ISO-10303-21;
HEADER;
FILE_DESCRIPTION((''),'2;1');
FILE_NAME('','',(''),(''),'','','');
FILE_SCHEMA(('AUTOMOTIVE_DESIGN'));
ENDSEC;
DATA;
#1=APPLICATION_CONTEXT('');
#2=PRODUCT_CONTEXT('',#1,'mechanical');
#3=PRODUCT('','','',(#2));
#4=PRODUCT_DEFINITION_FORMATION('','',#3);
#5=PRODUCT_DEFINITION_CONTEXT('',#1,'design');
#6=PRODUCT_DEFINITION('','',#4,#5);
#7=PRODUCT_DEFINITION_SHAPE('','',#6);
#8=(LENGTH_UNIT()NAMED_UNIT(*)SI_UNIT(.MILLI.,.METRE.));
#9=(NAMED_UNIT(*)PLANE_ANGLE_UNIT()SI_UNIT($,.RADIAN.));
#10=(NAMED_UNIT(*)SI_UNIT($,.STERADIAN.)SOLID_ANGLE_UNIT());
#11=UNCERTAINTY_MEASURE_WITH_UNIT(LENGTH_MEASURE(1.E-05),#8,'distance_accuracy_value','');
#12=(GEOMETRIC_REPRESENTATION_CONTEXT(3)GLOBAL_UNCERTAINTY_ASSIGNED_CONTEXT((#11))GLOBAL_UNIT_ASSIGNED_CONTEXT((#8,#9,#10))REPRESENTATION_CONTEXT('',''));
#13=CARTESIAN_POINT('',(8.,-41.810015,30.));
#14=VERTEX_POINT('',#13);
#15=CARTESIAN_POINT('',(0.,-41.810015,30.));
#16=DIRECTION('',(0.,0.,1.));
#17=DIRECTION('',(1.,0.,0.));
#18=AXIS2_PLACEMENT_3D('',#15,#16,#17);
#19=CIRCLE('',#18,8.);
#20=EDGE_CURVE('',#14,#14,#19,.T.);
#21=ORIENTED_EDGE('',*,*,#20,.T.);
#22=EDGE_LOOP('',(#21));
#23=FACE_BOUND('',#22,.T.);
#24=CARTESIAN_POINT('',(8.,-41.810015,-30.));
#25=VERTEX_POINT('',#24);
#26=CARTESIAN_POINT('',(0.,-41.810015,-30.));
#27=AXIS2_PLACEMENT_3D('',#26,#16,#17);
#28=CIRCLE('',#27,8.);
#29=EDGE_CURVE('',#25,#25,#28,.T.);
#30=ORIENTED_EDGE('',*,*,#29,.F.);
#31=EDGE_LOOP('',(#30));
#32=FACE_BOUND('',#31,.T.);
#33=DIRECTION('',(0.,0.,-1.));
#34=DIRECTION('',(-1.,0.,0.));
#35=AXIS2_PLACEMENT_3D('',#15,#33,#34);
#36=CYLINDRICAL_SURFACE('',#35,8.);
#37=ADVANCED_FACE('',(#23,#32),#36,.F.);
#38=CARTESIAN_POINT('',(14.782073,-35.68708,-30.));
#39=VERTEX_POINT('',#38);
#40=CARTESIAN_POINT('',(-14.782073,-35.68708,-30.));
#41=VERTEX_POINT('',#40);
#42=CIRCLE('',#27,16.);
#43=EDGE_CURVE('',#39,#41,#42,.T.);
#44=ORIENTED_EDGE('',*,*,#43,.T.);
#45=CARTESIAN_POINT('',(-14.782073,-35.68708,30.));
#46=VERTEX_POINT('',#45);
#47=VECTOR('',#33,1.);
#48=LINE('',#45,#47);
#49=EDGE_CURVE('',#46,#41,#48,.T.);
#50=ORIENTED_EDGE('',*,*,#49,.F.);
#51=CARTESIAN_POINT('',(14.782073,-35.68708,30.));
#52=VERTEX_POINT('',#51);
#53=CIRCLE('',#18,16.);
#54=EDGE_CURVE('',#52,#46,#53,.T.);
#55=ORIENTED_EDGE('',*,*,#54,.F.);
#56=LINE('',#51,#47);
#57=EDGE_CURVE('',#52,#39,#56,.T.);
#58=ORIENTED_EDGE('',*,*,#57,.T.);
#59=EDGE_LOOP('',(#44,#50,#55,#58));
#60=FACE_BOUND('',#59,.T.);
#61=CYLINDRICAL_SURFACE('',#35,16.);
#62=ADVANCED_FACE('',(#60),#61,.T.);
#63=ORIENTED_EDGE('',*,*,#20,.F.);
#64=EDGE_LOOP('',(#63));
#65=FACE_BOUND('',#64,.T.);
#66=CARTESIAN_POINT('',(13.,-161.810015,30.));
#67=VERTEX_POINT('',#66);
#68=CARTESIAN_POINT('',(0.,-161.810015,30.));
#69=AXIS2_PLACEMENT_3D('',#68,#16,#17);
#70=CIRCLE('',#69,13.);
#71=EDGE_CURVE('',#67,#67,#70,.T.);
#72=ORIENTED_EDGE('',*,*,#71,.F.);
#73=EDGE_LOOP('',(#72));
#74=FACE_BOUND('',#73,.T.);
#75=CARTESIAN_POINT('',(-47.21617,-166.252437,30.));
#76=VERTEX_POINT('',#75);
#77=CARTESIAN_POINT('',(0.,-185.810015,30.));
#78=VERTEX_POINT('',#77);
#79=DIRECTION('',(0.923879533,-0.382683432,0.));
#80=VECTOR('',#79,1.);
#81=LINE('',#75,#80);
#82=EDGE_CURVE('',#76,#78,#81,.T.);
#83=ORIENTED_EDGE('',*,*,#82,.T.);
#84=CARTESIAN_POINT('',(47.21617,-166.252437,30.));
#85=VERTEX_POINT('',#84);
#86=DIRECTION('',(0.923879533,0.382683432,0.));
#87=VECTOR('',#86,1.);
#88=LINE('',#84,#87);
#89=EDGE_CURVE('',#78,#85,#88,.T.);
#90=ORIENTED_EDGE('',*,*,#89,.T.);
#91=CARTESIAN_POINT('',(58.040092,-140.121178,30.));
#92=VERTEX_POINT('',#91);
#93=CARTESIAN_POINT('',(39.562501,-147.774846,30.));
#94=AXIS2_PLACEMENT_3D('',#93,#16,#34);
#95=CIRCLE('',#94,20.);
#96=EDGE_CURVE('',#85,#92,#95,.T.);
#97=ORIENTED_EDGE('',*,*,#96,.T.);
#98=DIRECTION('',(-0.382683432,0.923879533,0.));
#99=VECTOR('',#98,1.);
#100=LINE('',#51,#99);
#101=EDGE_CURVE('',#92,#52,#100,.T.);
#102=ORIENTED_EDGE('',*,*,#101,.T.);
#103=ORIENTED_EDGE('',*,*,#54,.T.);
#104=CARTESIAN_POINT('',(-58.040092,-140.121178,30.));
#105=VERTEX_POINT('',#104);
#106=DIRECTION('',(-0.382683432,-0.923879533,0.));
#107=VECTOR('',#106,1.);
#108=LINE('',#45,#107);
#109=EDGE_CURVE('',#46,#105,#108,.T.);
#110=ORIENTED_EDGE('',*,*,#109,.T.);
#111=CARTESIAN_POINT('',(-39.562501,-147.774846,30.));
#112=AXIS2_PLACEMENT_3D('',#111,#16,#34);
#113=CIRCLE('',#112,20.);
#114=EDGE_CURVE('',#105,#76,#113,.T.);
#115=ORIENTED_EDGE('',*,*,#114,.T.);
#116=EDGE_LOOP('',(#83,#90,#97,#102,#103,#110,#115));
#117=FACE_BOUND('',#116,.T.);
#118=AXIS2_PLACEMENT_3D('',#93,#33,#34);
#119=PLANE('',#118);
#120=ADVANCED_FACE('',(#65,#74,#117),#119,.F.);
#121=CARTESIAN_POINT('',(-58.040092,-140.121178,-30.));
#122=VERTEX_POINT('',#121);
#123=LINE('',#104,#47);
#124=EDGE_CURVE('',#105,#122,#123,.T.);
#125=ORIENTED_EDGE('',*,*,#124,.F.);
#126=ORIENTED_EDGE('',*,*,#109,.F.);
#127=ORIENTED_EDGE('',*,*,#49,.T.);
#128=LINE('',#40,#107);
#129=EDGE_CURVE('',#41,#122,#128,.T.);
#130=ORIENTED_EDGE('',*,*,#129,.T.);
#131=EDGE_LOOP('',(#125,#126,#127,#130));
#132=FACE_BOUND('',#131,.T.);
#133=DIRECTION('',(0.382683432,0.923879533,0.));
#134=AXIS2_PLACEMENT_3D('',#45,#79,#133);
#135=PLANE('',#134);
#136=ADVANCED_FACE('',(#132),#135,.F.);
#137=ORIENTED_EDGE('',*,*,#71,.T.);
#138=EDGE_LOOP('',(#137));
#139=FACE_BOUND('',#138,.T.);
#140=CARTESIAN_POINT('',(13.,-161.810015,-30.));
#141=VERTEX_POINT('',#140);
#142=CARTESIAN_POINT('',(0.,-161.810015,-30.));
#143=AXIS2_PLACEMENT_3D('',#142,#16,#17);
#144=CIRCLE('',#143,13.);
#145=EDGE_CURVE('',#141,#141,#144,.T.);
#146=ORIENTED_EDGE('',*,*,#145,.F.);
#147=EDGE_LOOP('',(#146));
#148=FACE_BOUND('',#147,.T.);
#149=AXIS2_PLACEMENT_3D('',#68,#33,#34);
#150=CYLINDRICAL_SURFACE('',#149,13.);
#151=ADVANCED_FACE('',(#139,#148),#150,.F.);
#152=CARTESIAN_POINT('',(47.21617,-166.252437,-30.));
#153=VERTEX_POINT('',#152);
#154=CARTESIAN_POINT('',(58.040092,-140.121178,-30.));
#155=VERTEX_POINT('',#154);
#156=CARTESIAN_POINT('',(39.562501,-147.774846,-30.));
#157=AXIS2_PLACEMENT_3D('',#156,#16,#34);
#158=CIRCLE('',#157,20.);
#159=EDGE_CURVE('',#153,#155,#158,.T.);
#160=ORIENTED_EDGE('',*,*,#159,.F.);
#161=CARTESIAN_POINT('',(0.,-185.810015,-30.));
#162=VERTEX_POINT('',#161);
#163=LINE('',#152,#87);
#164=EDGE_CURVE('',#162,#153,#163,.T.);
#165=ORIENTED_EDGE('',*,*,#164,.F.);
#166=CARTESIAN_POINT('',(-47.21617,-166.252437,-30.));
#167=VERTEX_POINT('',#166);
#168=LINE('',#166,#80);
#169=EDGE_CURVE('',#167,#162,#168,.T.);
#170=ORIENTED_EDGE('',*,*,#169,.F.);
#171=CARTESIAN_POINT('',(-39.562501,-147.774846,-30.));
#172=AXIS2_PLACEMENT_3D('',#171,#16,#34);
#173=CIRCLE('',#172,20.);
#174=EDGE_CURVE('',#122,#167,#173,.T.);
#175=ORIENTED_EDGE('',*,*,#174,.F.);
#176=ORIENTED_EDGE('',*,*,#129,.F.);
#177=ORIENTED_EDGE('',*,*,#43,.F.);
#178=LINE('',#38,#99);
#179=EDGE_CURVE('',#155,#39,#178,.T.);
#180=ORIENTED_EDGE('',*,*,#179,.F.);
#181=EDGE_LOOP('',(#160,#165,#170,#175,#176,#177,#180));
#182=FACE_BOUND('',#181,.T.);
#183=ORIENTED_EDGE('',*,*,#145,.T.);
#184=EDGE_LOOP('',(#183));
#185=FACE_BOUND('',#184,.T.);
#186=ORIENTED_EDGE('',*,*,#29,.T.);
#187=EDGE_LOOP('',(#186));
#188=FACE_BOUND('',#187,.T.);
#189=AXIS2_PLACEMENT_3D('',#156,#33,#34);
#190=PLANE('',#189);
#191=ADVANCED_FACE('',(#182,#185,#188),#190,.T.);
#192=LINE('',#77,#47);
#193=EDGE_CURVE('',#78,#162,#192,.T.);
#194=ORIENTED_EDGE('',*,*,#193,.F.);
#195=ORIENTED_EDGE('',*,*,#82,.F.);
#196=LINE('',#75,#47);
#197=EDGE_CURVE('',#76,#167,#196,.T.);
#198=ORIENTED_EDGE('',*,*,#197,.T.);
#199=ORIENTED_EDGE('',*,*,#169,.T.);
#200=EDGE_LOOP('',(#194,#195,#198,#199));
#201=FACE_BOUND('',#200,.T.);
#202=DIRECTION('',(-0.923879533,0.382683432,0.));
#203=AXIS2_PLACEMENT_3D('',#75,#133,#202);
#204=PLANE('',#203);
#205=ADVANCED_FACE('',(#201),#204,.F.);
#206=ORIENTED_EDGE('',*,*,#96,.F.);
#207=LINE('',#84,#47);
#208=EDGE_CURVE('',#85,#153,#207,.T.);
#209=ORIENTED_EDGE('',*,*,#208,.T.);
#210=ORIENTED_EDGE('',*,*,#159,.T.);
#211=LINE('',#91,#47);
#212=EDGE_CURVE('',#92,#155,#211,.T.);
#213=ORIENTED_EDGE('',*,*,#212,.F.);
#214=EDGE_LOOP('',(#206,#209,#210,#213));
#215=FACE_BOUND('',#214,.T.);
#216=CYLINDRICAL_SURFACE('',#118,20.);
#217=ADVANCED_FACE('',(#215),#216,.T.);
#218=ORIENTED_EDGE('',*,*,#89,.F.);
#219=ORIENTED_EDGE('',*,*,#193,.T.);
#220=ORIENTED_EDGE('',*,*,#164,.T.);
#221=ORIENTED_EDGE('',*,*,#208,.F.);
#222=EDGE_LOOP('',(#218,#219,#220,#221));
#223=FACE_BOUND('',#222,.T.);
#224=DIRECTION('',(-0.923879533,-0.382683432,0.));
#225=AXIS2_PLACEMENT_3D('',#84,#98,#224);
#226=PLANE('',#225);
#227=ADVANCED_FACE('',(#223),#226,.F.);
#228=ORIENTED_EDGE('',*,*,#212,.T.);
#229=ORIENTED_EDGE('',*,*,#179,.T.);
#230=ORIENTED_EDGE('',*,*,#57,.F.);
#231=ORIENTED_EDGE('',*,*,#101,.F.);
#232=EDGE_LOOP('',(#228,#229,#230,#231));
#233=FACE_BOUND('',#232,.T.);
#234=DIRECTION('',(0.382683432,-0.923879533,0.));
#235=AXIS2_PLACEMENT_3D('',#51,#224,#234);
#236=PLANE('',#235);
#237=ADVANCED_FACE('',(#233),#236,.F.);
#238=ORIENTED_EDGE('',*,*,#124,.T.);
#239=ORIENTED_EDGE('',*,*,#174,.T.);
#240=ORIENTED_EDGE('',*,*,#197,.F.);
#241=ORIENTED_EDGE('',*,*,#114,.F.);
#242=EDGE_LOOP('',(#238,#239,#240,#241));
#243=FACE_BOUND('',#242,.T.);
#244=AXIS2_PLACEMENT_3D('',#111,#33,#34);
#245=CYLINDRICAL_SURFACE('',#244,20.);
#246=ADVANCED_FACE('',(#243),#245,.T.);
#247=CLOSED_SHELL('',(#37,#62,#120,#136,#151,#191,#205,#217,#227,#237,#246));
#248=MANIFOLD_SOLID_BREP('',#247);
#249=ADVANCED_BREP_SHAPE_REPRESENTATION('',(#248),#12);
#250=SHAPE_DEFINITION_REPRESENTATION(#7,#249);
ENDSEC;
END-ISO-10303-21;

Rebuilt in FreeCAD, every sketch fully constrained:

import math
import FreeCAD as App
import Part
import Sketcher
Q = App.Units.Quantity

doc = App.newDocument("Part")
body = doc.addObject("PartDesign::Body", "Body")

# Sketch on XY plane
sketch1 = body.newObject("Sketcher::SketchObject", "Sketch")
sketch1.AttachmentSupport = (doc.getObject("XY_Plane"), [""])
sketch1.MapMode = "FlatFace"
sketch1.addGeometry([
    Part.LineSegment(App.Vector(58, -140, 0), App.Vector(15, -36, 0)),  # 0
    Part.ArcOfCircle(Part.Circle(App.Vector(0, -42, 0), App.Vector(0, 0, 1), 16), math.radians(23), math.radians(157)),  # 1
    Part.LineSegment(App.Vector(-15, -36, 0), App.Vector(-58, -140, 0)),  # 2
    Part.ArcOfCircle(Part.Circle(App.Vector(-40, -148, 0), App.Vector(0, 0, 1), 20), math.radians(157), math.radians(247)),  # 3
    Part.LineSegment(App.Vector(-47, -166, 0), App.Vector(0, -186, 0)),  # 4
    Part.LineSegment(App.Vector(0, -186, 0), App.Vector(47, -166, 0)),  # 5
    Part.ArcOfCircle(Part.Circle(App.Vector(40, -148, 0), App.Vector(0, 0, 1), 20), math.radians(-67), math.radians(23)),  # 6
    Part.Circle(App.Vector(0, -162, 0), App.Vector(0, 0, 1), 13),  # 7
    Part.Circle(App.Vector(0, -42, 0), App.Vector(0, 0, 1), 8),  # 8
], False)
sketch1.addConstraint([
    Sketcher.Constraint("Tangent", 0, 2, 1, 1),
    Sketcher.Constraint("Tangent", 1, 2, 2, 1),
    Sketcher.Constraint("Tangent", 2, 2, 3, 1),
    Sketcher.Constraint("Tangent", 3, 2, 4, 1),
    Sketcher.Constraint("Coincident", 4, 2, 5, 1),
    Sketcher.Constraint("Tangent", 5, 2, 6, 1),
    Sketcher.Constraint("Tangent", 6, 2, 0, 1),
    Sketcher.Constraint("Coincident", 8, 3, 1, 3),
    Sketcher.Constraint("Equal", 3, 6),
    Sketcher.Constraint("Symmetric", 3, 3, 6, 3, -2),
    Sketcher.Constraint("PointOnObject", 1, 3, -2),
    Sketcher.Constraint("PointOnObject", 7, 3, -2),
    Sketcher.Constraint("PointOnObject", 4, 2, -2),
    Sketcher.Constraint("Perpendicular", 2, 4),
    Sketcher.Constraint("Diameter", 7, Q("26 mm")),
    Sketcher.Constraint("Diameter", 8, Q("16 mm")),
    Sketcher.Constraint("Radius", 1, Q("16 mm")),
    Sketcher.Constraint("Radius", 3, Q("20 mm")),
    Sketcher.Constraint("Angle", 0, Q("112.5 deg")),
    Sketcher.Constraint("DistanceY", 7, 3, 1, 3, Q("120 mm")),
    Sketcher.Constraint("DistanceY", 4, 2, 7, 3, Q("24 mm")),
    Sketcher.Constraint("DistanceY", 0, 2, -1, 1, Q("35.68708 mm")),
])
pad1 = body.newObject("PartDesign::Pad", "Pad")
pad1.Profile = sketch1
pad1.Length = 60
pad1.Midplane = True

doc.recompute()
